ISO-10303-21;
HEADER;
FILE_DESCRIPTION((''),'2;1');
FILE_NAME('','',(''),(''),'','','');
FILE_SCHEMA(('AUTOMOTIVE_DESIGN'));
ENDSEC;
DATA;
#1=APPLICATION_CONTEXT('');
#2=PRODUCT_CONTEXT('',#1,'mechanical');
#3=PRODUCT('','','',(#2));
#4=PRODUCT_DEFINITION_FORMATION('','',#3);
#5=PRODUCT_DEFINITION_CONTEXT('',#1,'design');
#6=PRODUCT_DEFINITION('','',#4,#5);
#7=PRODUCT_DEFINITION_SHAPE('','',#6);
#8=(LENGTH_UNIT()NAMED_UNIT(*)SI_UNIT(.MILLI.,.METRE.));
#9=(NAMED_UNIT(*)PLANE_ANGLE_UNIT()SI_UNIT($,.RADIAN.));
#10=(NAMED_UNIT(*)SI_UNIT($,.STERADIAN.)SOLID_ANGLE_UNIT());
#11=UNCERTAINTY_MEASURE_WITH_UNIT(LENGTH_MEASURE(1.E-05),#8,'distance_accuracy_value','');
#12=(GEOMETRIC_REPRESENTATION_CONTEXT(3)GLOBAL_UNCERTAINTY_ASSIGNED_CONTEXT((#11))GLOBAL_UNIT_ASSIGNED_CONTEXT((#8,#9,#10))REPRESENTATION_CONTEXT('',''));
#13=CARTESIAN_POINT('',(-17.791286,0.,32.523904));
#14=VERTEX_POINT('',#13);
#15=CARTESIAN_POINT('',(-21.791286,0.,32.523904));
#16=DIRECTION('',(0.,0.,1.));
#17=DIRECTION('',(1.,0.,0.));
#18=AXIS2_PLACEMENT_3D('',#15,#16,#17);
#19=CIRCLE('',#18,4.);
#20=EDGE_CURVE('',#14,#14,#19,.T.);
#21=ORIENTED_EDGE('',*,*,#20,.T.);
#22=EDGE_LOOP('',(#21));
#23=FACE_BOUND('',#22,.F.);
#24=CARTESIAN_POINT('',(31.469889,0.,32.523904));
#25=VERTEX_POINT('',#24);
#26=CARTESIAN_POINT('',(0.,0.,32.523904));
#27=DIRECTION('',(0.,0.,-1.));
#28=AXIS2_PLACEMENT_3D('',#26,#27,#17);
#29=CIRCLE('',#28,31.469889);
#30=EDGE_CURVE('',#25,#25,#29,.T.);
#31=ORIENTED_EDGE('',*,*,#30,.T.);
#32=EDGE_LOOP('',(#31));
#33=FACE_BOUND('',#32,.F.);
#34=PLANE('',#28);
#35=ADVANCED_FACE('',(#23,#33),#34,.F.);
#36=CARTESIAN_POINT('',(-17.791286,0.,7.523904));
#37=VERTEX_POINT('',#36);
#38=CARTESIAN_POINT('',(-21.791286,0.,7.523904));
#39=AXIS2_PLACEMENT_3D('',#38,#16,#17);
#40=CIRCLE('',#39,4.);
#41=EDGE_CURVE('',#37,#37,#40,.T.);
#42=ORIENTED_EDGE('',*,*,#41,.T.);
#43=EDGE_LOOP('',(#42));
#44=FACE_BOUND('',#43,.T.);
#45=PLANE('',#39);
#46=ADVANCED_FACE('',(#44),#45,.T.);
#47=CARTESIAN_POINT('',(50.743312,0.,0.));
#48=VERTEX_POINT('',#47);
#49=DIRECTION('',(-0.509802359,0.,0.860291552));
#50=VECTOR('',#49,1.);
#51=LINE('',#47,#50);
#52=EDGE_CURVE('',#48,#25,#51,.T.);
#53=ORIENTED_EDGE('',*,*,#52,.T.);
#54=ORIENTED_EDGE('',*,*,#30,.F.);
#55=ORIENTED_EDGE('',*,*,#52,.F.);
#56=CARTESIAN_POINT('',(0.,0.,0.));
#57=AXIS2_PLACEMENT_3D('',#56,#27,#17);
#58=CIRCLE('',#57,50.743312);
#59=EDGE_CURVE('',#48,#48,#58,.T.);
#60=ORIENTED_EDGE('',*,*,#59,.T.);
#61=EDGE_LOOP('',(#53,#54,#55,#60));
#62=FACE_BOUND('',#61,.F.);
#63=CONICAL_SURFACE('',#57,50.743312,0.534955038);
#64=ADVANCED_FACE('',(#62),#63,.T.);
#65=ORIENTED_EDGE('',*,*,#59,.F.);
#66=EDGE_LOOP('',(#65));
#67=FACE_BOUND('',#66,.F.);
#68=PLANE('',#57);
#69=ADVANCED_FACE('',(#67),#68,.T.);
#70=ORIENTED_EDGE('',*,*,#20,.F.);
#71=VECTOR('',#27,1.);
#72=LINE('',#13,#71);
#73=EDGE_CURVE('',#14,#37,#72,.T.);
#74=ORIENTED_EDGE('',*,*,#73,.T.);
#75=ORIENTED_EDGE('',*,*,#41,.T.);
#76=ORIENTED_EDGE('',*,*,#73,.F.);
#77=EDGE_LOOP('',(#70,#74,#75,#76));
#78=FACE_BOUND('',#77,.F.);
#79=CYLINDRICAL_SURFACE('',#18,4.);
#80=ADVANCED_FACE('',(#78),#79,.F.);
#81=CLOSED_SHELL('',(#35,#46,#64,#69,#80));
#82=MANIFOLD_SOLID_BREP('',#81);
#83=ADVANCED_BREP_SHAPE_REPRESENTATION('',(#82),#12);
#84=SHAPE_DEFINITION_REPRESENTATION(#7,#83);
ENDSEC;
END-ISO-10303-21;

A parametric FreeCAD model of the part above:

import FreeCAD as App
import Part
import Sketcher

V = App.Vector
Q = App.Units.Quantity


def add_polygon(sketch, points):
    """Adds a closed chain of lines whose ends are joined by coincident constraints."""
    first, n = sketch.GeometryCount, len(points)
    for a, b in zip(points, points[1:] + points[:1]):
        sketch.addGeometry(Part.LineSegment(App.Vector(*a, 0), App.Vector(*b, 0)), False)
    for i in range(n):
        sketch.addConstraint(Sketcher.Constraint("Coincident", first + i, 2, first + (i + 1) % n, 1))

doc = App.newDocument("Part")
body = doc.addObject("PartDesign::Body", "Body")

# Sketch on XZ plane
sketch1 = body.newObject("Sketcher::SketchObject", "Sketch")
sketch1.AttachmentSupport = (doc.getObject("XZ_Plane"), [""])
sketch1.MapMode = "FlatFace"
add_polygon(sketch1, [(0, 33), (0, 0), (51, 0), (31, 33)])  # lines 0-3
sketch1.addConstraint(Sketcher.Constraint("Vertical", 0))
sketch1.addConstraint(Sketcher.Constraint("Horizontal", 1))
sketch1.addConstraint(Sketcher.Constraint("Horizontal", 3))
sketch1.addConstraint(Sketcher.Constraint("Coincident", 0, 2, -1, 1))
sketch1.addConstraint(Sketcher.Constraint("DistanceX", 3, 2, 3, 1, Q("31.469889 mm")))
sketch1.addConstraint(Sketcher.Constraint("DistanceX", 1, 1, 1, 2, Q("50.743312 mm")))
sketch1.addConstraint(Sketcher.Constraint("DistanceY", 0, 2, 0, 1, Q("32.523904 mm")))
revolution = body.newObject("PartDesign::Revolution", "Revolution")
revolution.Profile = sketch1
revolution.ReferenceAxis = (sketch1, ["V_Axis"])
revolution.Angle = 360

# Sketch on XY plane
sketch2 = body.newObject("Sketcher::SketchObject", "Sketch001")
sketch2.AttachmentSupport = (doc.getObject("XY_Plane"), [""])
sketch2.MapMode = "FlatFace"
sketch2.AttachmentOffset = App.Placement(V(0, 0, 32.523904), App.Rotation())
sketch2.addGeometry(Part.Circle(V(-21.8, 0, 0), V(0, 0, 1), 4), False)
sketch2.addConstraint(Sketcher.Constraint("PointOnObject", 0, 3, -1))
sketch2.addConstraint(Sketcher.Constraint("Diameter", 0, Q("8 mm")))
sketch2.addConstraint(Sketcher.Constraint("DistanceX", 0, 3, -1, 1, Q("21.791286 mm")))
pocket1 = body.newObject("PartDesign::Pocket", "Pocket")
pocket1.Profile = sketch2
pocket1.Length = 25

doc.recompute()
